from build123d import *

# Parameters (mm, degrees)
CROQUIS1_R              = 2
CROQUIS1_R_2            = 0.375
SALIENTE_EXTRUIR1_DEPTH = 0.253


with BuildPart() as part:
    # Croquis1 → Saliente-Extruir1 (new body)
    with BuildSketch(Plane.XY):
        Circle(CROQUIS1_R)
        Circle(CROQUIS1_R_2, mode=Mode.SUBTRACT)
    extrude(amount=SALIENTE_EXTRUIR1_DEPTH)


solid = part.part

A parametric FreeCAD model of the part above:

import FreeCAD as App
import Part
import Sketcher

doc = App.newDocument("Part")
body = doc.addObject("PartDesign::Body", "Body")

# Sketch on XY plane
sketch1 = doc.addObject("Sketcher::SketchObject", "Sketch")
body.addObject(sketch1)
sketch1.AttachmentSupport = (doc.XY_Plane, [""])
sketch1.MapMode = "FlatFace"
sketch1.addGeometry(Part.Circle(App.Vector(0, 0, 0), App.Vector(0, 0, 1), 2), False)
sketch1.addGeometry(Part.Circle(App.Vector(0, 0, 0), App.Vector(0, 0, 1), 0.375), False)
sketch1.addConstraint(Sketcher.Constraint("Coincident", 0, 3, -1, 1))
sketch1.addConstraint(Sketcher.Constraint("Coincident", 1, 3, -1, 1))
sketch1.addConstraint(Sketcher.Constraint("Diameter", 0, 4.0))
sketch1.addConstraint(Sketcher.Constraint("Diameter", 1, 0.75))
pad1 = doc.addObject("PartDesign::Pad", "Pad")
body.addObject(pad1)
pad1.Profile = sketch1
pad1.Length = 0.253

doc.recompute()
